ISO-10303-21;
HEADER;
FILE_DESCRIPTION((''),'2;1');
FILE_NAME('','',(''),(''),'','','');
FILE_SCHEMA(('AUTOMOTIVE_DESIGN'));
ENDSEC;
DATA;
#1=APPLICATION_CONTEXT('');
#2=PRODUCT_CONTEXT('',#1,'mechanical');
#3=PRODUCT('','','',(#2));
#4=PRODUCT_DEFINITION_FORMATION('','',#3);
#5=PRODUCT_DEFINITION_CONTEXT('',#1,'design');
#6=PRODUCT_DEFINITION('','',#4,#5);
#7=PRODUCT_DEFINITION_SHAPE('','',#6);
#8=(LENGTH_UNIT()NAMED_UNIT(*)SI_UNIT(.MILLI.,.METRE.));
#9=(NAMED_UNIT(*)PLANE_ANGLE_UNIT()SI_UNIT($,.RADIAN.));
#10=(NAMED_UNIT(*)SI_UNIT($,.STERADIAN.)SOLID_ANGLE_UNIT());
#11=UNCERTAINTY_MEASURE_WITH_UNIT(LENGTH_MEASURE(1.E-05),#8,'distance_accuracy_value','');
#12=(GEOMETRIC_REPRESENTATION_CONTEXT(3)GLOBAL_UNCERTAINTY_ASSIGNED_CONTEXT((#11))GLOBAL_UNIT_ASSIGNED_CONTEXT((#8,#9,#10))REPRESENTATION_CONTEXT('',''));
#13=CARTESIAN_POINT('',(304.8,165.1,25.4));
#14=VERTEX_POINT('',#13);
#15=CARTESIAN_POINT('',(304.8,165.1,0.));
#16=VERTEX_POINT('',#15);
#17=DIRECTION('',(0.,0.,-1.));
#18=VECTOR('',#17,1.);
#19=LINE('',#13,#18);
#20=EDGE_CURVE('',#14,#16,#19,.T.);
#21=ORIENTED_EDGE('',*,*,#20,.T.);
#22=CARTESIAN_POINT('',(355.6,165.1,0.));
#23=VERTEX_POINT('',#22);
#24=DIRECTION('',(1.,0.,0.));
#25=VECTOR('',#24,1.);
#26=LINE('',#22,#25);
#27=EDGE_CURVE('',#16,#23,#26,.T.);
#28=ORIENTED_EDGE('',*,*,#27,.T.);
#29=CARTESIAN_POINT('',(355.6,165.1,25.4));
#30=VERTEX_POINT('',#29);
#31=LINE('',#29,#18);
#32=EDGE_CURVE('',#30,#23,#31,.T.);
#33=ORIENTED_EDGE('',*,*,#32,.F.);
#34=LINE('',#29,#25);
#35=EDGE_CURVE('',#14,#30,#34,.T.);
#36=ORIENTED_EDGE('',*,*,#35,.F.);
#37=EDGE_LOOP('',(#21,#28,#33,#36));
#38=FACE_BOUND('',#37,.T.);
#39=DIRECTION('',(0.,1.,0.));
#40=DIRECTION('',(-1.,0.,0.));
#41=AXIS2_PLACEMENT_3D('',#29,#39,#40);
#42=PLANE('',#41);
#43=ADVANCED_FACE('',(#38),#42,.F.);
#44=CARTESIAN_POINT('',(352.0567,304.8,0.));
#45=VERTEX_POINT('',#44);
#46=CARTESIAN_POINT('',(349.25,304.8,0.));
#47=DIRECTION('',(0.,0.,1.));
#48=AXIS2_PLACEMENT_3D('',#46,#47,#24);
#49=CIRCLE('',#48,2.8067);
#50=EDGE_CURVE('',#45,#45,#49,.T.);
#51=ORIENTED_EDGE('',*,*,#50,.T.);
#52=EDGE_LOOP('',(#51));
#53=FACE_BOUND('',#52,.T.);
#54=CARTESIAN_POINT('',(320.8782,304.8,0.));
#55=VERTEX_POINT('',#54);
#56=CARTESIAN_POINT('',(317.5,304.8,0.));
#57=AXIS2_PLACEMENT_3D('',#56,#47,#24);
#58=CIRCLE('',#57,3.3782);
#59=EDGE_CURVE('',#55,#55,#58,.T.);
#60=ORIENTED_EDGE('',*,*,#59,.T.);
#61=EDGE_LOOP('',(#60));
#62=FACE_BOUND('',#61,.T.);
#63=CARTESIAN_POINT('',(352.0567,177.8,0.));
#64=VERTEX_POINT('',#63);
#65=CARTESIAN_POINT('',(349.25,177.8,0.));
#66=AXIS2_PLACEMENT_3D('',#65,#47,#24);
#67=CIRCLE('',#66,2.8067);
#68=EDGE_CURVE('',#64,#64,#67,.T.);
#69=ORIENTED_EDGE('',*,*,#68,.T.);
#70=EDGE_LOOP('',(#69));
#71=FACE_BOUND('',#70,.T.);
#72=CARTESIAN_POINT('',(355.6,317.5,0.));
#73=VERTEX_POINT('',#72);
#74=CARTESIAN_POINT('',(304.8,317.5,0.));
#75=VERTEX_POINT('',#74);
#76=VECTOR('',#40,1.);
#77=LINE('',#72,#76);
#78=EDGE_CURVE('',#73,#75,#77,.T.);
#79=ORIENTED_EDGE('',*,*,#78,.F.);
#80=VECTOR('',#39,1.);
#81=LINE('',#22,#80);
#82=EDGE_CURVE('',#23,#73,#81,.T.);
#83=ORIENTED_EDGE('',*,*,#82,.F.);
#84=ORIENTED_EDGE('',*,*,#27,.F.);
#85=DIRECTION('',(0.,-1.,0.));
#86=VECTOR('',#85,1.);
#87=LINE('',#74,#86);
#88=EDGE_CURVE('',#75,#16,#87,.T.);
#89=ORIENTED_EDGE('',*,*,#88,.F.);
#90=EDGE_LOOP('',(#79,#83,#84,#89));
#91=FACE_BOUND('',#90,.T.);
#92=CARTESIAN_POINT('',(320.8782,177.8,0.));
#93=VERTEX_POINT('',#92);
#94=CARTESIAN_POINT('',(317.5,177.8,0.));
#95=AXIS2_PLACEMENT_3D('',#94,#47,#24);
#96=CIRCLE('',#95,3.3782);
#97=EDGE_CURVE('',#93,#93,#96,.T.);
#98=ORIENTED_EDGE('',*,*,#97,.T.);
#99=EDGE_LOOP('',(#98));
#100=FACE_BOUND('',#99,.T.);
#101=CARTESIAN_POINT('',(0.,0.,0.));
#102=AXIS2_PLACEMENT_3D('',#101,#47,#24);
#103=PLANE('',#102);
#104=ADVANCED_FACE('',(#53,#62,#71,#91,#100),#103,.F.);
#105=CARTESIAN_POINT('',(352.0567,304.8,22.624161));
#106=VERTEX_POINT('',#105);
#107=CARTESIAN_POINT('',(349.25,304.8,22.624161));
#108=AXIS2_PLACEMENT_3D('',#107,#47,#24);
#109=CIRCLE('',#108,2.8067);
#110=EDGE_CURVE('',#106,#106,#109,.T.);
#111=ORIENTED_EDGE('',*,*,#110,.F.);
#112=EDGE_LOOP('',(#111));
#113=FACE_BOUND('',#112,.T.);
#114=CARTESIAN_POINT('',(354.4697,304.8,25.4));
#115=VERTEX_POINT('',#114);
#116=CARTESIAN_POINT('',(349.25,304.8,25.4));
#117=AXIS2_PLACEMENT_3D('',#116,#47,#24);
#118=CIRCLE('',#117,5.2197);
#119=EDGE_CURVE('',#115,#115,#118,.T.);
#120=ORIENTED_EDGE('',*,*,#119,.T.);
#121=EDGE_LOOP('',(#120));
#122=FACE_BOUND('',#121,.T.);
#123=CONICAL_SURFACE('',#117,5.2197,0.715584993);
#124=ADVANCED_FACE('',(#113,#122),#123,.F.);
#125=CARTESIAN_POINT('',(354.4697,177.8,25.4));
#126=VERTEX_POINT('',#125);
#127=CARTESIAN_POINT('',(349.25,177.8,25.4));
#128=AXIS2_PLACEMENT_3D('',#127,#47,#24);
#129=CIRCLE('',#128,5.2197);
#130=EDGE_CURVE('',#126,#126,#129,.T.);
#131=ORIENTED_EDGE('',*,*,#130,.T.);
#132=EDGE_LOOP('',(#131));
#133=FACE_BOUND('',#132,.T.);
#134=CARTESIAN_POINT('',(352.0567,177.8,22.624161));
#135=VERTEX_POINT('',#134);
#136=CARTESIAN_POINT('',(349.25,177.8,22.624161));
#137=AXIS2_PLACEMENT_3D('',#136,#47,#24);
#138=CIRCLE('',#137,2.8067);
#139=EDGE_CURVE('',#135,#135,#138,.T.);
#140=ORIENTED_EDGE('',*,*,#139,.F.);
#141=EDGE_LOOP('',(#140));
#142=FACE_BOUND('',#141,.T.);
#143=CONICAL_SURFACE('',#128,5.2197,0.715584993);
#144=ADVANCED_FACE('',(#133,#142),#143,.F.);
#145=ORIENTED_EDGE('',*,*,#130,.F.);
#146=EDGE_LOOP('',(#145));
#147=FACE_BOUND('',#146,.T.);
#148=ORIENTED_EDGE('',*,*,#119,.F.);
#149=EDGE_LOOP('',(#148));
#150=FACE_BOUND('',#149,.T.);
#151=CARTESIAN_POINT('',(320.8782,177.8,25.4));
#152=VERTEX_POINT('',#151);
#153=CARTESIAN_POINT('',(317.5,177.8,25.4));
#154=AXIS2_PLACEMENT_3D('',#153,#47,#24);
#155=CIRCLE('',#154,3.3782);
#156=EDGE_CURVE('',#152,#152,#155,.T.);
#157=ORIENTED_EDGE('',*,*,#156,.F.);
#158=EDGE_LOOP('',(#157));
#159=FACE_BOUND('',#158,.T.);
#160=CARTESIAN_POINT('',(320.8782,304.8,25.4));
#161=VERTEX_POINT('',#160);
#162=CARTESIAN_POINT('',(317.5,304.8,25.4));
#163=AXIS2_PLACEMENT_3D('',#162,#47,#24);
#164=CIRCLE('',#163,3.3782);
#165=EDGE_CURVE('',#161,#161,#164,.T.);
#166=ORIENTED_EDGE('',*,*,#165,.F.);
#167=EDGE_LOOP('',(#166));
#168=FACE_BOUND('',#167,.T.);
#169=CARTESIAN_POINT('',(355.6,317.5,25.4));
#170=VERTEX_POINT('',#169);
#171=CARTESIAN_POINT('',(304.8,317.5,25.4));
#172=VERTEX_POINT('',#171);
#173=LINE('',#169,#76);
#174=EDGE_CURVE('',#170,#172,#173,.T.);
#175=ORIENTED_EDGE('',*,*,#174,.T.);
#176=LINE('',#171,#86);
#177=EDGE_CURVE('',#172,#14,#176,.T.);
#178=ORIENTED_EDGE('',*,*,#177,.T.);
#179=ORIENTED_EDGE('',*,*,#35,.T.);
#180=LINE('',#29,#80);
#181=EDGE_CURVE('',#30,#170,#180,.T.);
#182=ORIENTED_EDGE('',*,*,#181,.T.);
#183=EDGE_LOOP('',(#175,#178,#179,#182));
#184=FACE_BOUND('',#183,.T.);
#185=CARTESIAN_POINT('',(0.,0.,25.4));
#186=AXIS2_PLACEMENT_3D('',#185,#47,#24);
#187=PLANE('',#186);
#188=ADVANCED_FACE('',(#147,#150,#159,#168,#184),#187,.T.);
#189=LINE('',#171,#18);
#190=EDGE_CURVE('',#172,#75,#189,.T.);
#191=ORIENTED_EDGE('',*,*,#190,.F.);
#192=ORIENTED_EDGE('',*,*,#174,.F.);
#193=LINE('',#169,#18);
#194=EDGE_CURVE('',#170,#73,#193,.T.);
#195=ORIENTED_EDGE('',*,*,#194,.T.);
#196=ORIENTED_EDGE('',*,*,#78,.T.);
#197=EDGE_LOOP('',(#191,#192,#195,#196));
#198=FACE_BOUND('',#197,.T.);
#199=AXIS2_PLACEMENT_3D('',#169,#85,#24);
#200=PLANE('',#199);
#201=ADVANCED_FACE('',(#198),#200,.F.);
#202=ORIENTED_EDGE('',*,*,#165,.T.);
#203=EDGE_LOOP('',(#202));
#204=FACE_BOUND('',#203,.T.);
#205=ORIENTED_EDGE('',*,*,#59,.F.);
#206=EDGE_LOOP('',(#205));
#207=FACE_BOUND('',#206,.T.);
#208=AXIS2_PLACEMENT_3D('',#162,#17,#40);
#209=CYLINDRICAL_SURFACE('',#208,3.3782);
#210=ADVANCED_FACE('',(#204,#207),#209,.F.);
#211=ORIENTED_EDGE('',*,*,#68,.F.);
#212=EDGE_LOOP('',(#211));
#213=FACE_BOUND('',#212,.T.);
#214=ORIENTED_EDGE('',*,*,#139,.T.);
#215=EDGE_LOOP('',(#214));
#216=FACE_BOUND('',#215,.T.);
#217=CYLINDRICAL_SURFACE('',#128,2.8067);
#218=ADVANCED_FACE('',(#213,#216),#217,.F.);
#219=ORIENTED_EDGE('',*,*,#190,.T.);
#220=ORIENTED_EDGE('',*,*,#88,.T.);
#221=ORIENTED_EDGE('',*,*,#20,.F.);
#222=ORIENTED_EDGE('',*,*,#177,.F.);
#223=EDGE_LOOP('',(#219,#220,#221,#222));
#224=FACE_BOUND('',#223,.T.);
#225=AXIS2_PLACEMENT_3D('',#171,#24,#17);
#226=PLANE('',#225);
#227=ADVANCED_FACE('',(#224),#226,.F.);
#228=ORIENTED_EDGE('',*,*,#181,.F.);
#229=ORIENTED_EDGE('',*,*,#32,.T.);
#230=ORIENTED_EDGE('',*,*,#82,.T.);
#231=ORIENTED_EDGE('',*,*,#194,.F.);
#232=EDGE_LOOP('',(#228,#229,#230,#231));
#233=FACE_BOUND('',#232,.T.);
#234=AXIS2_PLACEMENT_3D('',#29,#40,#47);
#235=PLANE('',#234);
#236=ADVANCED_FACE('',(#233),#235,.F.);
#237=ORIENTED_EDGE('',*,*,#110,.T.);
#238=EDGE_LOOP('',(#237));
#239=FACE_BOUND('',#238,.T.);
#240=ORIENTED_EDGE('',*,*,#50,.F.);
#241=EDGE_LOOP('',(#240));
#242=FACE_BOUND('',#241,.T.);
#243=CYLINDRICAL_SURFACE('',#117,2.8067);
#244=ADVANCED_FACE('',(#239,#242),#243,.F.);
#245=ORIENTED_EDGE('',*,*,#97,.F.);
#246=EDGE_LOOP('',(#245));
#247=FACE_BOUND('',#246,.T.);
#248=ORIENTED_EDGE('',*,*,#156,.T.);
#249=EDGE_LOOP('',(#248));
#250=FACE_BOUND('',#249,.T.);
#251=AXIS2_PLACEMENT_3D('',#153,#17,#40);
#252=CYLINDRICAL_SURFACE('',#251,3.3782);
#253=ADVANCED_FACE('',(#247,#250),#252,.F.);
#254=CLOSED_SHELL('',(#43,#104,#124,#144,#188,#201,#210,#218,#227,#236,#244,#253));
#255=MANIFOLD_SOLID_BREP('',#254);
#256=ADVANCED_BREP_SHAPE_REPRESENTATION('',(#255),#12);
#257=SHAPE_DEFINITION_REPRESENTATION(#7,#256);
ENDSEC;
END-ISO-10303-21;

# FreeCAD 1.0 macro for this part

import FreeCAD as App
import Part
import Sketcher
from FreeCAD import Vector
Q = App.Units.Quantity

doc = App.newDocument("Part")
params = doc.addObject("Spreadsheet::Sheet", "Params")
for row, (alias, value) in enumerate([
    ("sketch1_width", "2 in"),
    ("sketch1_height", "6 in"),
    ("sketch1_diameter", "0.266 in"),
    ("pad1_length", "1 in"),
    ("sketch2_diameter", "0.221 in"),
    ("hole_diameter", "0.221 in"),
    ("hole_csink_diameter", "0.411 in"),
], start=1):
    params.set(f"A{row}", alias)
    params.set(f"B{row}", "=" + value)
    params.setAlias(f"B{row}", alias)

body = doc.addObject("PartDesign::Body", "Body")

sketch1 = body.newObject("Sketcher::SketchObject", "Sketch")
sketch1.AttachmentSupport = (doc.getObject("XY_Plane"), [""])
sketch1.MapMode = "FlatFace"
sketch1.addGeometry(Part.LineSegment(Vector(304.8, 317.5, 0), Vector(304.8, 165.1, 0)), False)
sketch1.addGeometry(Part.LineSegment(Vector(304.8, 165.1, 0), Vector(355.6, 165.1, 0)), False)
sketch1.addGeometry(Part.LineSegment(Vector(355.6, 165.1, 0), Vector(355.6, 317.5, 0)), False)
sketch1.addGeometry(Part.LineSegment(Vector(355.6, 317.5, 0), Vector(304.8, 317.5, 0)), False)
sketch1.addGeometry(Part.Circle(Vector(317.5, 177.8, 0), Vector(0, 0, 1), 3.3782), False)
sketch1.addGeometry(Part.Circle(Vector(317.5, 304.8, 0), Vector(0, 0, 1), 3.3782), False)
sketch1.addConstraint(Sketcher.Constraint("Coincident", 0, 2, 1, 1))
sketch1.addConstraint(Sketcher.Constraint("Coincident", 1, 2, 2, 1))
sketch1.addConstraint(Sketcher.Constraint("Coincident", 2, 2, 3, 1))
sketch1.addConstraint(Sketcher.Constraint("Coincident", 3, 2, 0, 1))
sketch1.addConstraint(Sketcher.Constraint("Vertical", 0))
sketch1.addConstraint(Sketcher.Constraint("Horizontal", 1))
sketch1.addConstraint(Sketcher.Constraint("Vertical", 2))
sketch1.addConstraint(Sketcher.Constraint("Horizontal", 3))
sketch1.addConstraint(Sketcher.Constraint("Equal", 4, 5))
sketch1.addConstraint(Sketcher.Constraint("Vertical", 4, 3, 5, 3))
sketch1.addConstraint(Sketcher.Constraint("DistanceX", 1, 1, 1, 2, Q("2 in")))
sketch1.addConstraint(Sketcher.Constraint("DistanceY", 0, 2, 0, 1, Q("6 in")))
sketch1.addConstraint(Sketcher.Constraint("Diameter", 4, Q("0.266 in")))
sketch1.addConstraint(Sketcher.Constraint("DistanceY", -1, 1, 4, 3, Q("7 in")))
sketch1.addConstraint(Sketcher.Constraint("DistanceY", -1, 1, 5, 3, Q("12 in")))
sketch1.addConstraint(Sketcher.Constraint("DistanceX", -1, 1, 0, 2, Q("12 in")))
sketch1.addConstraint(Sketcher.Constraint("DistanceX", -1, 1, 4, 3, Q("12.5 in")))
sketch1.addConstraint(Sketcher.Constraint("DistanceY", -1, 1, 0, 2, Q("6.5 in")))
sketch1.setExpression("Constraints[10]", "Params.sketch1_width")
sketch1.setExpression("Constraints[11]", "Params.sketch1_height")
sketch1.setExpression("Constraints[12]", "Params.sketch1_diameter")
pad1 = body.newObject("PartDesign::Pad", "Pad")
pad1.Profile = sketch1
pad1.setExpression("Length", "Params.pad1_length")

sketch2 = body.newObject("Sketcher::SketchObject", "Sketch001")
sketch2.AttachmentSupport = (doc.getObject("XY_Plane"), [""])
sketch2.MapMode = "FlatFace"
sketch2.AttachmentOffset = App.Placement(Vector(0, 0, 1 * 25.4), App.Rotation())
sketch2.addGeometry(Part.Circle(Vector(349.25, 304.8, 0), Vector(0, 0, 1), 2.8067), False)
sketch2.addGeometry(Part.Circle(Vector(349.25, 177.8, 0), Vector(0, 0, 1), 2.8067), False)
sketch2.addConstraint(Sketcher.Constraint("Equal", 0, 1))
sketch2.addConstraint(Sketcher.Constraint("Vertical", 0, 3, 1, 3))
sketch2.addConstraint(Sketcher.Constraint("Diameter", 0, Q("0.221 in")))
sketch2.addConstraint(Sketcher.Constraint("DistanceY", -1, 1, 0, 3, Q("12 in")))
sketch2.addConstraint(Sketcher.Constraint("DistanceY", -1, 1, 1, 3, Q("7 in")))
sketch2.addConstraint(Sketcher.Constraint("DistanceX", -1, 1, 0, 3, Q("13.75 in")))
sketch2.setExpression("Constraints[2]", "Params.sketch2_diameter")
doc.recompute()
hole = body.newObject("PartDesign::Hole", "Hole")
hole.Profile = sketch2
hole.ThreadType = "None"
hole.setExpression("Diameter", "Params.hole_diameter")
hole.DepthType = "ThroughAll"
hole.HoleCutType = "Countersink"
hole.setExpression("HoleCutDiameter", "Params.hole_csink_diameter")
hole.HoleCutCountersinkAngle = 82

doc.recompute()
